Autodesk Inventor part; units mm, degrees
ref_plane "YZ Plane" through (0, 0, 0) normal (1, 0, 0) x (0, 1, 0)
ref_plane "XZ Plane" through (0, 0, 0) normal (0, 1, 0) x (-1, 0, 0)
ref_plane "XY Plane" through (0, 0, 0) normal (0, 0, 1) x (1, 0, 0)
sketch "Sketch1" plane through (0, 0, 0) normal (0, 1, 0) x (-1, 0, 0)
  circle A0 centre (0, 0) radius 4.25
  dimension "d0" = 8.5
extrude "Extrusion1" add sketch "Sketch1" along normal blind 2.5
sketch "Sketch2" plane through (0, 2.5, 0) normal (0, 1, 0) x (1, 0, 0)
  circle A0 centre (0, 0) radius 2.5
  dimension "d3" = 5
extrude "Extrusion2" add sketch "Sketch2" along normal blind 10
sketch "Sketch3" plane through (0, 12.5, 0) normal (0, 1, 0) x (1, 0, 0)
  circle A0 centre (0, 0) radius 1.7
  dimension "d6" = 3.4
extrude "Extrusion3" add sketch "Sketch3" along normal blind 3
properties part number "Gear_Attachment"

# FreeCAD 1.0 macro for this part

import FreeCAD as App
import Part
import Sketcher
from FreeCAD import Vector

doc = App.newDocument("Part")
body = doc.addObject("PartDesign::Body", "Body")

# Sketch on XZ plane
sketch1 = body.newObject("Sketcher::SketchObject", "Sketch")
sketch1.AttachmentSupport = (doc.getObject("XZ_Plane"), [""])
sketch1.MapMode = "FlatFace"
sketch1.addGeometry(Part.Circle(Vector(0, 0, 0), Vector(0, 0, 1), 4.25), False)
sketch1.addConstraint(Sketcher.Constraint("Coincident", 0, 3, -1, 1))
sketch1.addConstraint(Sketcher.Constraint("Diameter", 0, 8.5))
pad1 = body.newObject("PartDesign::Pad", "Pad")
pad1.Profile = sketch1
pad1.Length = 2.5
pad1.Reversed = True

# Sketch on XZ plane
sketch2 = body.newObject("Sketcher::SketchObject", "Sketch001")
sketch2.AttachmentSupport = (doc.getObject("XZ_Plane"), [""])
sketch2.MapMode = "FlatFace"
sketch2.AttachmentOffset = App.Placement(Vector(0, 0, -2.5), App.Rotation())
sketch2.addGeometry(Part.Circle(Vector(0, 0, 0), Vector(0, 0, 1), 2.5), False)
sketch2.addConstraint(Sketcher.Constraint("Coincident", 0, 3, -1, 1))
sketch2.addConstraint(Sketcher.Constraint("Diameter", 0, 5.0))
pad2 = body.newObject("PartDesign::Pad", "Pad001")
pad2.Profile = sketch2
pad2.Length = 10
pad2.Reversed = True

# Sketch on XZ plane
sketch3 = body.newObject("Sketcher::SketchObject", "Sketch002")
sketch3.AttachmentSupport = (doc.getObject("XZ_Plane"), [""])
sketch3.MapMode = "FlatFace"
sketch3.AttachmentOffset = App.Placement(Vector(0, 0, -12.5), App.Rotation())
sketch3.addGeometry(Part.Circle(Vector(0, 0, 0), Vector(0, 0, 1), 1.7), False)
sketch3.addConstraint(Sketcher.Constraint("Coincident", 0, 3, -1, 1))
sketch3.addConstraint(Sketcher.Constraint("Diameter", 0, 3.4))
pad3 = body.newObject("PartDesign::Pad", "Pad002")
pad3.Profile = sketch3
pad3.Length = 3
pad3.Reversed = True

doc.recompute()
